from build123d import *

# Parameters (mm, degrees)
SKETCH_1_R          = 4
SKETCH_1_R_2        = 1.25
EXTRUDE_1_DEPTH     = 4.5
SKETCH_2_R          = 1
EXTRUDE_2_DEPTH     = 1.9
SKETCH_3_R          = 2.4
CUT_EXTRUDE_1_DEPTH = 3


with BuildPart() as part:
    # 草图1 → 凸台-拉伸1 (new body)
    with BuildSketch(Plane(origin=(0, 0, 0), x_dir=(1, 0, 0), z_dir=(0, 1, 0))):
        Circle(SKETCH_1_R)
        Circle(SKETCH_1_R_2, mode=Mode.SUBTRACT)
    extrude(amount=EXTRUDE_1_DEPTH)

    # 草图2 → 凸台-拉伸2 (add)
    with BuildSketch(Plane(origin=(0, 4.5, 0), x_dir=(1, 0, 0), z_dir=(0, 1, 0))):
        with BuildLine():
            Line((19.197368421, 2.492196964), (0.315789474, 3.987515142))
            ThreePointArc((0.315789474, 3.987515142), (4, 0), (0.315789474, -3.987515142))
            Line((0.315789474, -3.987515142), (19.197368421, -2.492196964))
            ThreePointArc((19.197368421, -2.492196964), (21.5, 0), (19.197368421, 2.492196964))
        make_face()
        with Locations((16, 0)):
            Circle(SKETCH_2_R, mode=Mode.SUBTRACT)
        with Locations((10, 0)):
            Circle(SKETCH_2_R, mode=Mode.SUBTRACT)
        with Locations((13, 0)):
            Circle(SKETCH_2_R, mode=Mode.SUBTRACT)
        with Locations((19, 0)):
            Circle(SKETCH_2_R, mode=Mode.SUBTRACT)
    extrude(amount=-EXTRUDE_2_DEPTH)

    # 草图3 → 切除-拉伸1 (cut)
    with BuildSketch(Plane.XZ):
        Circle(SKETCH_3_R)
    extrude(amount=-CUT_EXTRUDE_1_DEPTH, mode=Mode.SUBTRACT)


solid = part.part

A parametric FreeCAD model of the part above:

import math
import FreeCAD as App
import Part
import Sketcher
from FreeCAD import Vector

doc = App.newDocument("Part")
body = doc.addObject("PartDesign::Body", "Body")

# Sketch on XZ plane
sketch1 = body.newObject("Sketcher::SketchObject", "Sketch")
sketch1.AttachmentSupport = (doc.getObject("XZ_Plane"), [""])
sketch1.MapMode = "FlatFace"
sketch1.addGeometry([
    Part.Circle(Vector(0, 0, 0), Vector(0, 0, 1), 4),
    Part.Circle(Vector(0, 0, 0), Vector(0, 0, 1), 1.2),
], False)
sketch1.addConstraint([
    Sketcher.Constraint("Coincident", 0, 3, -1, 1),
    Sketcher.Constraint("Coincident", 1, 3, -1, 1),
    Sketcher.Constraint("Diameter", 0, 8.0),
    Sketcher.Constraint("Diameter", 1, 2.5),
])
pad1 = body.newObject("PartDesign::Pad", "Pad")
pad1.Profile = sketch1
pad1.Length = 4.5
pad1.Reversed = True

# Sketch on XZ plane
sketch2 = body.newObject("Sketcher::SketchObject", "Sketch001")
sketch2.AttachmentSupport = (doc.getObject("XZ_Plane"), [""])
sketch2.MapMode = "FlatFace"
sketch2.AttachmentOffset = App.Placement(Vector(0, 0, -4.5), App.Rotation())
sketch2.addGeometry([
    Part.LineSegment(Vector(19.2, -2.5, 0), Vector(0.3, -4, 0)),  # 0
    Part.ArcOfCircle(Part.Circle(Vector(0, 0, 0), Vector(0, 0, 1), 4), math.radians(-85), math.radians(85)),  # 1
    Part.LineSegment(Vector(0.3, 4, 0), Vector(19.2, 2.5, 0)),  # 2
    Part.ArcOfCircle(Part.Circle(Vector(19, 0, 0), Vector(0, 0, 1), 2.5), math.radians(-85), math.radians(85)),  # 3
    Part.Circle(Vector(10, 0, 0), Vector(0, 0, 1), 1),  # 4
    Part.Circle(Vector(13, 0, 0), Vector(0, 0, 1), 1),  # 5
    Part.Circle(Vector(16, 0, 0), Vector(0, 0, 1), 1),  # 6
    Part.Circle(Vector(19, 0, 0), Vector(0, 0, 1), 1),  # 7
], False)
sketch2.addConstraint([
    Sketcher.Constraint("Tangent", 0, 2, 1, 1),
    Sketcher.Constraint("Tangent", 1, 2, 2, 1),
    Sketcher.Constraint("Tangent", 2, 2, 3, 2),
    Sketcher.Constraint("Tangent", 3, 1, 0, 1),
    Sketcher.Constraint("Coincident", 1, 3, -1, 1),
    Sketcher.Constraint("Coincident", 7, 3, 3, 3),
    Sketcher.Constraint("Equal", 4, 5),
    Sketcher.Constraint("Equal", 5, 6),
    Sketcher.Constraint("Equal", 6, 7),
    Sketcher.Constraint("PointOnObject", 3, 3, -1),
    Sketcher.Constraint("PointOnObject", 4, 3, -1),
    Sketcher.Constraint("PointOnObject", 5, 3, -1),
    Sketcher.Constraint("PointOnObject", 6, 3, -1),
    Sketcher.Constraint("Diameter", 4, 2.0),
    Sketcher.Constraint("Radius", 1, 4.0),
    Sketcher.Constraint("Radius", 3, 2.5),
    Sketcher.Constraint("DistanceX", -1, 1, 3, 3, 19.0),
    Sketcher.Constraint("DistanceX", -1, 1, 4, 3, 10.0),
    Sketcher.Constraint("DistanceX", -1, 1, 5, 3, 13.0),
    Sketcher.Constraint("DistanceX", -1, 1, 6, 3, 16.0),
])
pad2 = body.newObject("PartDesign::Pad", "Pad001")
pad2.Profile = sketch2
pad2.Length = 1.9

# Sketch on XZ plane
sketch3 = body.newObject("Sketcher::SketchObject", "Sketch002")
sketch3.AttachmentSupport = (doc.getObject("XZ_Plane"), [""])
sketch3.MapMode = "FlatFace"
sketch3.addGeometry(Part.Circle(Vector(0, 0, 0), Vector(0, 0, 1), 2.4), False)
sketch3.addConstraint([
    Sketcher.Constraint("Coincident", 0, 3, -1, 1),
    Sketcher.Constraint("Diameter", 0, 4.8),
])
pocket1 = body.newObject("PartDesign::Pocket", "Pocket")
pocket1.Profile = sketch3
pocket1.Length = 3

doc.recompute()
